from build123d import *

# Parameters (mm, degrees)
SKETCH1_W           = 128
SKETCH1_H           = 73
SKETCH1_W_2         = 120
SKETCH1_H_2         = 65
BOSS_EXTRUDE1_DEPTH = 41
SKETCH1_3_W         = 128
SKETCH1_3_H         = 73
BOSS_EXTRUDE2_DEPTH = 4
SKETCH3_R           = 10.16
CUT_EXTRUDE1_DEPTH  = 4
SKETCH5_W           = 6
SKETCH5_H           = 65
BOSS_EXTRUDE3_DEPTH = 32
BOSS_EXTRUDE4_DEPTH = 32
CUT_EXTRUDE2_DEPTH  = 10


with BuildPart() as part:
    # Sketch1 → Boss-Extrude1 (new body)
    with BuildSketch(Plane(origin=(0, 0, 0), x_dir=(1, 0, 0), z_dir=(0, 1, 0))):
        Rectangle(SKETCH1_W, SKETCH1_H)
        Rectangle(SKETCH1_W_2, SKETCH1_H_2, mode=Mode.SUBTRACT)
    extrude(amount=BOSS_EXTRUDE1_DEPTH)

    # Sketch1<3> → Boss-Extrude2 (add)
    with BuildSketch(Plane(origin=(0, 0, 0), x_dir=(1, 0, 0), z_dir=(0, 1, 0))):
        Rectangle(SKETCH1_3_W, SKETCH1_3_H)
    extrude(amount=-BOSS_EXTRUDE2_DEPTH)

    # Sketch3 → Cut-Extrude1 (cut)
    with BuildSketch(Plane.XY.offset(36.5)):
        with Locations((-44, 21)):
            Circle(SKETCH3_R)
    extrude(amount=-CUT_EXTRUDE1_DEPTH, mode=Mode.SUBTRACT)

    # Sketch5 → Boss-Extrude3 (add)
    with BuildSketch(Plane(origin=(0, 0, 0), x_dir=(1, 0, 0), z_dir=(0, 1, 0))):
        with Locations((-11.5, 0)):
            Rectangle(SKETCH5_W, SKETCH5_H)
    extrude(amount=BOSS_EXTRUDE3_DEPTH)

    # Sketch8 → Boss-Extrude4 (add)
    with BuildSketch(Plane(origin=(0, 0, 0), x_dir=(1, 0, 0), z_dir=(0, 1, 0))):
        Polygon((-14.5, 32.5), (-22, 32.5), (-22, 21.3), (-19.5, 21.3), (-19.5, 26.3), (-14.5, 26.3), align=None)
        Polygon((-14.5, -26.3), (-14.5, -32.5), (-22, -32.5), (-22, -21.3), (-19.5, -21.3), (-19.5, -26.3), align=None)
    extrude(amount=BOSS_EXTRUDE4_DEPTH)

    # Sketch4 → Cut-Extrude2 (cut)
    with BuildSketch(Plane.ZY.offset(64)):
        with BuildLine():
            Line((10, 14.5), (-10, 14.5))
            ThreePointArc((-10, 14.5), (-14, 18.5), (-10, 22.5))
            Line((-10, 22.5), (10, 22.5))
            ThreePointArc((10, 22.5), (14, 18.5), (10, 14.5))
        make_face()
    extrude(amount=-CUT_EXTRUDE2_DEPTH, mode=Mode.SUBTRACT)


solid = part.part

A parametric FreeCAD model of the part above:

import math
import FreeCAD as App
import Part
import Sketcher
Q = App.Units.Quantity

doc = App.newDocument("Part")
body = doc.addObject("PartDesign::Body", "Body")

# Sketch on XZ plane
sketch1 = body.newObject("Sketcher::SketchObject", "Sketch")
sketch1.AttachmentSupport = (doc.getObject("XZ_Plane"), [""])
sketch1.MapMode = "FlatFace"
sketch1.addGeometry(Part.LineSegment(App.Vector(-64, -36.5, 0), App.Vector(-64, 36.5, 0)), False)
sketch1.addGeometry(Part.LineSegment(App.Vector(-64, 36.5, 0), App.Vector(64, 36.5, 0)), False)
sketch1.addGeometry(Part.LineSegment(App.Vector(64, 36.5, 0), App.Vector(64, -36.5, 0)), False)
sketch1.addGeometry(Part.LineSegment(App.Vector(64, -36.5, 0), App.Vector(-64, -36.5, 0)), False)
sketch1.addGeometry(Part.LineSegment(App.Vector(60, 32.5, 0), App.Vector(-60, 32.5, 0)), False)
sketch1.addGeometry(Part.LineSegment(App.Vector(-60, 32.5, 0), App.Vector(-60, -32.5, 0)), False)
sketch1.addGeometry(Part.LineSegment(App.Vector(-60, -32.5, 0), App.Vector(60, -32.5, 0)), False)
sketch1.addGeometry(Part.LineSegment(App.Vector(60, -32.5, 0), App.Vector(60, 32.5, 0)), False)
sketch1.addConstraint(Sketcher.Constraint("Coincident", 0, 2, 1, 1))
sketch1.addConstraint(Sketcher.Constraint("Coincident", 1, 2, 2, 1))
sketch1.addConstraint(Sketcher.Constraint("Coincident", 2, 2, 3, 1))
sketch1.addConstraint(Sketcher.Constraint("Coincident", 3, 2, 0, 1))
sketch1.addConstraint(Sketcher.Constraint("Coincident", 4, 2, 5, 1))
sketch1.addConstraint(Sketcher.Constraint("Coincident", 5, 2, 6, 1))
sketch1.addConstraint(Sketcher.Constraint("Coincident", 6, 2, 7, 1))
sketch1.addConstraint(Sketcher.Constraint("Coincident", 7, 2, 4, 1))
sketch1.addConstraint(Sketcher.Constraint("Vertical", 0))
sketch1.addConstraint(Sketcher.Constraint("Horizontal", 1))
sketch1.addConstraint(Sketcher.Constraint("Vertical", 2))
sketch1.addConstraint(Sketcher.Constraint("Horizontal", 3))
sketch1.addConstraint(Sketcher.Constraint("Horizontal", 4))
sketch1.addConstraint(Sketcher.Constraint("Vertical", 5))
sketch1.addConstraint(Sketcher.Constraint("Horizontal", 6))
sketch1.addConstraint(Sketcher.Constraint("Vertical", 7))
sketch1.addConstraint(Sketcher.Constraint("Symmetric", 0, 2, 2, 2, -1, 1))
sketch1.addConstraint(Sketcher.Constraint("Symmetric", 4, 2, 6, 2, -1, 1))
sketch1.addConstraint(Sketcher.Constraint("DistanceX", 1, 1, 1, 2, Q("128 mm")))
sketch1.addConstraint(Sketcher.Constraint("DistanceX", 4, 2, 4, 1, Q("120 mm")))
sketch1.addConstraint(Sketcher.Constraint("DistanceY", 0, 1, 0, 2, Q("73 mm")))
sketch1.addConstraint(Sketcher.Constraint("DistanceY", 5, 2, 5, 1, Q("65 mm")))
pad1 = body.newObject("PartDesign::Pad", "Pad")
pad1.Profile = sketch1
pad1.Length = 41
pad1.Reversed = True

# Sketch on XZ plane
sketch2 = body.newObject("Sketcher::SketchObject", "Sketch001")
sketch2.AttachmentSupport = (doc.getObject("XZ_Plane"), [""])
sketch2.MapMode = "FlatFace"
sketch2.addGeometry(Part.LineSegment(App.Vector(-64, -36.5, 0), App.Vector(-64, 36.5, 0)), False)
sketch2.addGeometry(Part.LineSegment(App.Vector(-64, 36.5, 0), App.Vector(64, 36.5, 0)), False)
sketch2.addGeometry(Part.LineSegment(App.Vector(64, 36.5, 0), App.Vector(64, -36.5, 0)), False)
sketch2.addGeometry(Part.LineSegment(App.Vector(64, -36.5, 0), App.Vector(-64, -36.5, 0)), False)
sketch2.addConstraint(Sketcher.Constraint("Coincident", 0, 2, 1, 1))
sketch2.addConstraint(Sketcher.Constraint("Coincident", 1, 2, 2, 1))
sketch2.addConstraint(Sketcher.Constraint("Coincident", 2, 2, 3, 1))
sketch2.addConstraint(Sketcher.Constraint("Coincident", 3, 2, 0, 1))
sketch2.addConstraint(Sketcher.Constraint("Vertical", 0))
sketch2.addConstraint(Sketcher.Constraint("Horizontal", 1))
sketch2.addConstraint(Sketcher.Constraint("Vertical", 2))
sketch2.addConstraint(Sketcher.Constraint("Horizontal", 3))
sketch2.addConstraint(Sketcher.Constraint("Symmetric", 0, 2, 2, 2, -1, 1))
sketch2.addConstraint(Sketcher.Constraint("DistanceX", 1, 1, 1, 2, Q("128 mm")))
sketch2.addConstraint(Sketcher.Constraint("DistanceY", 0, 1, 0, 2, Q("73 mm")))
pad2 = body.newObject("PartDesign::Pad", "Pad001")
pad2.Profile = sketch2
pad2.Length = 4

# Sketch on XY plane
sketch3 = body.newObject("Sketcher::SketchObject", "Sketch002")
sketch3.AttachmentSupport = (doc.getObject("XY_Plane"), [""])
sketch3.MapMode = "FlatFace"
sketch3.AttachmentOffset = App.Placement(App.Vector(0, 0, 36.5), App.Rotation())
sketch3.addGeometry(Part.Circle(App.Vector(-44, 21, 0), App.Vector(0, 0, 1), 10.16), False)
sketch3.addConstraint(Sketcher.Constraint("Diameter", 0, Q("20.32 mm")))
sketch3.addConstraint(Sketcher.Constraint("DistanceX", 0, 3, -1, 1, Q("44 mm")))
sketch3.addConstraint(Sketcher.Constraint("DistanceY", -1, 1, 0, 3, Q("21 mm")))
pocket1 = body.newObject("PartDesign::Pocket", "Pocket")
pocket1.Profile = sketch3
pocket1.Length = 4

# Sketch on XZ plane
sketch4 = body.newObject("Sketcher::SketchObject", "Sketch003")
sketch4.AttachmentSupport = (doc.getObject("XZ_Plane"), [""])
sketch4.MapMode = "FlatFace"
sketch4.addGeometry(Part.LineSegment(App.Vector(-14.5, -32.5, 0), App.Vector(-14.5, 32.5, 0)), False)
sketch4.addGeometry(Part.LineSegment(App.Vector(-14.5, 32.5, 0), App.Vector(-8.5, 32.5, 0)), False)
sketch4.addGeometry(Part.LineSegment(App.Vector(-8.5, 32.5, 0), App.Vector(-8.5, -32.5, 0)), False)
sketch4.addGeometry(Part.LineSegment(App.Vector(-8.5, -32.5, 0), App.Vector(-14.5, -32.5, 0)), False)
sketch4.addConstraint(Sketcher.Constraint("Coincident", 0, 2, 1, 1))
sketch4.addConstraint(Sketcher.Constraint("Coincident", 1, 2, 2, 1))
sketch4.addConstraint(Sketcher.Constraint("Coincident", 2, 2, 3, 1))
sketch4.addConstraint(Sketcher.Constraint("Coincident", 3, 2, 0, 1))
sketch4.addConstraint(Sketcher.Constraint("Vertical", 0))
sketch4.addConstraint(Sketcher.Constraint("Horizontal", 1))
sketch4.addConstraint(Sketcher.Constraint("Vertical", 2))
sketch4.addConstraint(Sketcher.Constraint("Horizontal", 3))
sketch4.addConstraint(Sketcher.Constraint("DistanceX", 1, 1, 1, 2, Q("6 mm")))
sketch4.addConstraint(Sketcher.Constraint("DistanceY", 0, 1, 0, 2, Q("65 mm")))
sketch4.addConstraint(Sketcher.Constraint("DistanceX", 0, 2, -1, 1, Q("14.5 mm")))
sketch4.addConstraint(Sketcher.Constraint("DistanceY", -1, 1, 0, 2, Q("32.5 mm")))
pad3 = body.newObject("PartDesign::Pad", "Pad002")
pad3.Profile = sketch4
pad3.Length = 32
pad3.Reversed = True

# Sketch on XZ plane
sketch5 = body.newObject("Sketcher::SketchObject", "Sketch004")
sketch5.AttachmentSupport = (doc.getObject("XZ_Plane"), [""])
sketch5.MapMode = "FlatFace"
sketch5.addGeometry(Part.LineSegment(App.Vector(-14.5, -32.5, 0), App.Vector(-22, -32.5, 0)), False)
sketch5.addGeometry(Part.LineSegment(App.Vector(-22, -32.5, 0), App.Vector(-22, -21.3, 0)), False)
sketch5.addGeometry(Part.LineSegment(App.Vector(-22, -21.3, 0), App.Vector(-19.5, -21.3, 0)), False)
sketch5.addGeometry(Part.LineSegment(App.Vector(-19.5, -21.3, 0), App.Vector(-19.5, -26.3, 0)), False)
sketch5.addGeometry(Part.LineSegment(App.Vector(-19.5, -26.3, 0), App.Vector(-14.5, -26.3, 0)), False)
sketch5.addGeometry(Part.LineSegment(App.Vector(-14.5, -26.3, 0), App.Vector(-14.5, -32.5, 0)), False)
sketch5.addGeometry(Part.LineSegment(App.Vector(-14.5, 32.5, 0), App.Vector(-14.5, 26.3, 0)), False)
sketch5.addGeometry(Part.LineSegment(App.Vector(-14.5, 26.3, 0), App.Vector(-19.5, 26.3, 0)), False)
sketch5.addGeometry(Part.LineSegment(App.Vector(-19.5, 26.3, 0), App.Vector(-19.5, 21.3, 0)), False)
sketch5.addGeometry(Part.LineSegment(App.Vector(-19.5, 21.3, 0), App.Vector(-22, 21.3, 0)), False)
sketch5.addGeometry(Part.LineSegment(App.Vector(-22, 21.3, 0), App.Vector(-22, 32.5, 0)), False)
sketch5.addGeometry(Part.LineSegment(App.Vector(-22, 32.5, 0), App.Vector(-14.5, 32.5, 0)), False)
sketch5.addConstraint(Sketcher.Constraint("Coincident", 0, 2, 1, 1))
sketch5.addConstraint(Sketcher.Constraint("Coincident", 1, 2, 2, 1))
sketch5.addConstraint(Sketcher.Constraint("Coincident", 2, 2, 3, 1))
sketch5.addConstraint(Sketcher.Constraint("Coincident", 3, 2, 4, 1))
sketch5.addConstraint(Sketcher.Constraint("Coincident", 4, 2, 5, 1))
sketch5.addConstraint(Sketcher.Constraint("Coincident", 5, 2, 0, 1))
sketch5.addConstraint(Sketcher.Constraint("Coincident", 6, 2, 7, 1))
sketch5.addConstraint(Sketcher.Constraint("Coincident", 7, 2, 8, 1))
sketch5.addConstraint(Sketcher.Constraint("Coincident", 8, 2, 9, 1))
sketch5.addConstraint(Sketcher.Constraint("Coincident", 9, 2, 10, 1))
sketch5.addConstraint(Sketcher.Constraint("Coincident", 10, 2, 11, 1))
sketch5.addConstraint(Sketcher.Constraint("Coincident", 11, 2, 6, 1))
sketch5.addConstraint(Sketcher.Constraint("Horizontal", 0))
sketch5.addConstraint(Sketcher.Constraint("Vertical", 1))
sketch5.addConstraint(Sketcher.Constraint("Horizontal", 2))
sketch5.addConstraint(Sketcher.Constraint("Vertical", 3))
sketch5.addConstraint(Sketcher.Constraint("Horizontal", 4))
sketch5.addConstraint(Sketcher.Constraint("Vertical", 5))
sketch5.addConstraint(Sketcher.Constraint("Vertical", 6))
sketch5.addConstraint(Sketcher.Constraint("Horizontal", 7))
sketch5.addConstraint(Sketcher.Constraint("Vertical", 8))
sketch5.addConstraint(Sketcher.Constraint("Horizontal", 9))
sketch5.addConstraint(Sketcher.Constraint("Vertical", 10))
sketch5.addConstraint(Sketcher.Constraint("Horizontal", 11))
sketch5.addConstraint(Sketcher.Constraint("Symmetric", 4, 2, 6, 2, -1))
sketch5.addConstraint(Sketcher.Constraint("Symmetric", 2, 2, 8, 2, -1))
sketch5.addConstraint(Sketcher.Constraint("Symmetric", 0, 2, 10, 2, -1))
sketch5.addConstraint(Sketcher.Constraint("Equal", 7, 3))
sketch5.addConstraint(Sketcher.Constraint("DistanceX", 4, 1, 4, 2, Q("5 mm")))
sketch5.addConstraint(Sketcher.Constraint("DistanceX", 0, 2, 0, 1, Q("7.5 mm")))
sketch5.addConstraint(Sketcher.Constraint("DistanceY", 1, 1, 1, 2, Q("11.2 mm")))
sketch5.addConstraint(Sketcher.Constraint("DistanceX", 0, 2, -1, 1, Q("22 mm")))
sketch5.addConstraint(Sketcher.Constraint("DistanceY", 0, 2, -1, 1, Q("32.5 mm")))
pad4 = body.newObject("PartDesign::Pad", "Pad003")
pad4.Profile = sketch5
pad4.Length = 32
pad4.Reversed = True

# Sketch on YZ plane
sketch6 = body.newObject("Sketcher::SketchObject", "Sketch005")
sketch6.AttachmentSupport = (doc.getObject("YZ_Plane"), [""])
sketch6.MapMode = "FlatFace"
sketch6.AttachmentOffset = App.Placement(App.Vector(0, 0, -64), App.Rotation())
sketch6.addGeometry(Part.LineSegment(App.Vector(14.5, -10, 0), App.Vector(14.5, 10, 0)), False)
sketch6.addGeometry(Part.ArcOfCircle(Part.Circle(App.Vector(18.5, 10, 0), App.Vector(0, 0, 1), 4), math.radians(0), math.radians(180)), False)
sketch6.addGeometry(Part.LineSegment(App.Vector(22.5, 10, 0), App.Vector(22.5, -10, 0)), False)
sketch6.addGeometry(Part.ArcOfCircle(Part.Circle(App.Vector(18.5, -10, 0), App.Vector(0, 0, 1), 4), math.radians(180), math.radians(360)), False)
sketch6.addConstraint(Sketcher.Constraint("Tangent", 0, 2, 1, 2))
sketch6.addConstraint(Sketcher.Constraint("Tangent", 1, 1, 2, 1))
sketch6.addConstraint(Sketcher.Constraint("Tangent", 2, 2, 3, 2))
sketch6.addConstraint(Sketcher.Constraint("Tangent", 3, 1, 0, 1))
sketch6.addConstraint(Sketcher.Constraint("Vertical", 0))
sketch6.addConstraint(Sketcher.Constraint("Vertical", 2))
sketch6.addConstraint(Sketcher.Constraint("Radius", 1, Q("4 mm")))
sketch6.addConstraint(Sketcher.Constraint("DistanceY", 0, 1, 0, 2, Q("20 mm")))
sketch6.addConstraint(Sketcher.Constraint("DistanceY", -1, 1, 1, 3, Q("10 mm")))
sketch6.addConstraint(Sketcher.Constraint("DistanceX", -1, 1, 1, 3, Q("18.5 mm")))
pocket2 = body.newObject("PartDesign::Pocket", "Pocket001")
pocket2.Profile = sketch6
pocket2.Length = 10
pocket2.Reversed = True

doc.recompute()
